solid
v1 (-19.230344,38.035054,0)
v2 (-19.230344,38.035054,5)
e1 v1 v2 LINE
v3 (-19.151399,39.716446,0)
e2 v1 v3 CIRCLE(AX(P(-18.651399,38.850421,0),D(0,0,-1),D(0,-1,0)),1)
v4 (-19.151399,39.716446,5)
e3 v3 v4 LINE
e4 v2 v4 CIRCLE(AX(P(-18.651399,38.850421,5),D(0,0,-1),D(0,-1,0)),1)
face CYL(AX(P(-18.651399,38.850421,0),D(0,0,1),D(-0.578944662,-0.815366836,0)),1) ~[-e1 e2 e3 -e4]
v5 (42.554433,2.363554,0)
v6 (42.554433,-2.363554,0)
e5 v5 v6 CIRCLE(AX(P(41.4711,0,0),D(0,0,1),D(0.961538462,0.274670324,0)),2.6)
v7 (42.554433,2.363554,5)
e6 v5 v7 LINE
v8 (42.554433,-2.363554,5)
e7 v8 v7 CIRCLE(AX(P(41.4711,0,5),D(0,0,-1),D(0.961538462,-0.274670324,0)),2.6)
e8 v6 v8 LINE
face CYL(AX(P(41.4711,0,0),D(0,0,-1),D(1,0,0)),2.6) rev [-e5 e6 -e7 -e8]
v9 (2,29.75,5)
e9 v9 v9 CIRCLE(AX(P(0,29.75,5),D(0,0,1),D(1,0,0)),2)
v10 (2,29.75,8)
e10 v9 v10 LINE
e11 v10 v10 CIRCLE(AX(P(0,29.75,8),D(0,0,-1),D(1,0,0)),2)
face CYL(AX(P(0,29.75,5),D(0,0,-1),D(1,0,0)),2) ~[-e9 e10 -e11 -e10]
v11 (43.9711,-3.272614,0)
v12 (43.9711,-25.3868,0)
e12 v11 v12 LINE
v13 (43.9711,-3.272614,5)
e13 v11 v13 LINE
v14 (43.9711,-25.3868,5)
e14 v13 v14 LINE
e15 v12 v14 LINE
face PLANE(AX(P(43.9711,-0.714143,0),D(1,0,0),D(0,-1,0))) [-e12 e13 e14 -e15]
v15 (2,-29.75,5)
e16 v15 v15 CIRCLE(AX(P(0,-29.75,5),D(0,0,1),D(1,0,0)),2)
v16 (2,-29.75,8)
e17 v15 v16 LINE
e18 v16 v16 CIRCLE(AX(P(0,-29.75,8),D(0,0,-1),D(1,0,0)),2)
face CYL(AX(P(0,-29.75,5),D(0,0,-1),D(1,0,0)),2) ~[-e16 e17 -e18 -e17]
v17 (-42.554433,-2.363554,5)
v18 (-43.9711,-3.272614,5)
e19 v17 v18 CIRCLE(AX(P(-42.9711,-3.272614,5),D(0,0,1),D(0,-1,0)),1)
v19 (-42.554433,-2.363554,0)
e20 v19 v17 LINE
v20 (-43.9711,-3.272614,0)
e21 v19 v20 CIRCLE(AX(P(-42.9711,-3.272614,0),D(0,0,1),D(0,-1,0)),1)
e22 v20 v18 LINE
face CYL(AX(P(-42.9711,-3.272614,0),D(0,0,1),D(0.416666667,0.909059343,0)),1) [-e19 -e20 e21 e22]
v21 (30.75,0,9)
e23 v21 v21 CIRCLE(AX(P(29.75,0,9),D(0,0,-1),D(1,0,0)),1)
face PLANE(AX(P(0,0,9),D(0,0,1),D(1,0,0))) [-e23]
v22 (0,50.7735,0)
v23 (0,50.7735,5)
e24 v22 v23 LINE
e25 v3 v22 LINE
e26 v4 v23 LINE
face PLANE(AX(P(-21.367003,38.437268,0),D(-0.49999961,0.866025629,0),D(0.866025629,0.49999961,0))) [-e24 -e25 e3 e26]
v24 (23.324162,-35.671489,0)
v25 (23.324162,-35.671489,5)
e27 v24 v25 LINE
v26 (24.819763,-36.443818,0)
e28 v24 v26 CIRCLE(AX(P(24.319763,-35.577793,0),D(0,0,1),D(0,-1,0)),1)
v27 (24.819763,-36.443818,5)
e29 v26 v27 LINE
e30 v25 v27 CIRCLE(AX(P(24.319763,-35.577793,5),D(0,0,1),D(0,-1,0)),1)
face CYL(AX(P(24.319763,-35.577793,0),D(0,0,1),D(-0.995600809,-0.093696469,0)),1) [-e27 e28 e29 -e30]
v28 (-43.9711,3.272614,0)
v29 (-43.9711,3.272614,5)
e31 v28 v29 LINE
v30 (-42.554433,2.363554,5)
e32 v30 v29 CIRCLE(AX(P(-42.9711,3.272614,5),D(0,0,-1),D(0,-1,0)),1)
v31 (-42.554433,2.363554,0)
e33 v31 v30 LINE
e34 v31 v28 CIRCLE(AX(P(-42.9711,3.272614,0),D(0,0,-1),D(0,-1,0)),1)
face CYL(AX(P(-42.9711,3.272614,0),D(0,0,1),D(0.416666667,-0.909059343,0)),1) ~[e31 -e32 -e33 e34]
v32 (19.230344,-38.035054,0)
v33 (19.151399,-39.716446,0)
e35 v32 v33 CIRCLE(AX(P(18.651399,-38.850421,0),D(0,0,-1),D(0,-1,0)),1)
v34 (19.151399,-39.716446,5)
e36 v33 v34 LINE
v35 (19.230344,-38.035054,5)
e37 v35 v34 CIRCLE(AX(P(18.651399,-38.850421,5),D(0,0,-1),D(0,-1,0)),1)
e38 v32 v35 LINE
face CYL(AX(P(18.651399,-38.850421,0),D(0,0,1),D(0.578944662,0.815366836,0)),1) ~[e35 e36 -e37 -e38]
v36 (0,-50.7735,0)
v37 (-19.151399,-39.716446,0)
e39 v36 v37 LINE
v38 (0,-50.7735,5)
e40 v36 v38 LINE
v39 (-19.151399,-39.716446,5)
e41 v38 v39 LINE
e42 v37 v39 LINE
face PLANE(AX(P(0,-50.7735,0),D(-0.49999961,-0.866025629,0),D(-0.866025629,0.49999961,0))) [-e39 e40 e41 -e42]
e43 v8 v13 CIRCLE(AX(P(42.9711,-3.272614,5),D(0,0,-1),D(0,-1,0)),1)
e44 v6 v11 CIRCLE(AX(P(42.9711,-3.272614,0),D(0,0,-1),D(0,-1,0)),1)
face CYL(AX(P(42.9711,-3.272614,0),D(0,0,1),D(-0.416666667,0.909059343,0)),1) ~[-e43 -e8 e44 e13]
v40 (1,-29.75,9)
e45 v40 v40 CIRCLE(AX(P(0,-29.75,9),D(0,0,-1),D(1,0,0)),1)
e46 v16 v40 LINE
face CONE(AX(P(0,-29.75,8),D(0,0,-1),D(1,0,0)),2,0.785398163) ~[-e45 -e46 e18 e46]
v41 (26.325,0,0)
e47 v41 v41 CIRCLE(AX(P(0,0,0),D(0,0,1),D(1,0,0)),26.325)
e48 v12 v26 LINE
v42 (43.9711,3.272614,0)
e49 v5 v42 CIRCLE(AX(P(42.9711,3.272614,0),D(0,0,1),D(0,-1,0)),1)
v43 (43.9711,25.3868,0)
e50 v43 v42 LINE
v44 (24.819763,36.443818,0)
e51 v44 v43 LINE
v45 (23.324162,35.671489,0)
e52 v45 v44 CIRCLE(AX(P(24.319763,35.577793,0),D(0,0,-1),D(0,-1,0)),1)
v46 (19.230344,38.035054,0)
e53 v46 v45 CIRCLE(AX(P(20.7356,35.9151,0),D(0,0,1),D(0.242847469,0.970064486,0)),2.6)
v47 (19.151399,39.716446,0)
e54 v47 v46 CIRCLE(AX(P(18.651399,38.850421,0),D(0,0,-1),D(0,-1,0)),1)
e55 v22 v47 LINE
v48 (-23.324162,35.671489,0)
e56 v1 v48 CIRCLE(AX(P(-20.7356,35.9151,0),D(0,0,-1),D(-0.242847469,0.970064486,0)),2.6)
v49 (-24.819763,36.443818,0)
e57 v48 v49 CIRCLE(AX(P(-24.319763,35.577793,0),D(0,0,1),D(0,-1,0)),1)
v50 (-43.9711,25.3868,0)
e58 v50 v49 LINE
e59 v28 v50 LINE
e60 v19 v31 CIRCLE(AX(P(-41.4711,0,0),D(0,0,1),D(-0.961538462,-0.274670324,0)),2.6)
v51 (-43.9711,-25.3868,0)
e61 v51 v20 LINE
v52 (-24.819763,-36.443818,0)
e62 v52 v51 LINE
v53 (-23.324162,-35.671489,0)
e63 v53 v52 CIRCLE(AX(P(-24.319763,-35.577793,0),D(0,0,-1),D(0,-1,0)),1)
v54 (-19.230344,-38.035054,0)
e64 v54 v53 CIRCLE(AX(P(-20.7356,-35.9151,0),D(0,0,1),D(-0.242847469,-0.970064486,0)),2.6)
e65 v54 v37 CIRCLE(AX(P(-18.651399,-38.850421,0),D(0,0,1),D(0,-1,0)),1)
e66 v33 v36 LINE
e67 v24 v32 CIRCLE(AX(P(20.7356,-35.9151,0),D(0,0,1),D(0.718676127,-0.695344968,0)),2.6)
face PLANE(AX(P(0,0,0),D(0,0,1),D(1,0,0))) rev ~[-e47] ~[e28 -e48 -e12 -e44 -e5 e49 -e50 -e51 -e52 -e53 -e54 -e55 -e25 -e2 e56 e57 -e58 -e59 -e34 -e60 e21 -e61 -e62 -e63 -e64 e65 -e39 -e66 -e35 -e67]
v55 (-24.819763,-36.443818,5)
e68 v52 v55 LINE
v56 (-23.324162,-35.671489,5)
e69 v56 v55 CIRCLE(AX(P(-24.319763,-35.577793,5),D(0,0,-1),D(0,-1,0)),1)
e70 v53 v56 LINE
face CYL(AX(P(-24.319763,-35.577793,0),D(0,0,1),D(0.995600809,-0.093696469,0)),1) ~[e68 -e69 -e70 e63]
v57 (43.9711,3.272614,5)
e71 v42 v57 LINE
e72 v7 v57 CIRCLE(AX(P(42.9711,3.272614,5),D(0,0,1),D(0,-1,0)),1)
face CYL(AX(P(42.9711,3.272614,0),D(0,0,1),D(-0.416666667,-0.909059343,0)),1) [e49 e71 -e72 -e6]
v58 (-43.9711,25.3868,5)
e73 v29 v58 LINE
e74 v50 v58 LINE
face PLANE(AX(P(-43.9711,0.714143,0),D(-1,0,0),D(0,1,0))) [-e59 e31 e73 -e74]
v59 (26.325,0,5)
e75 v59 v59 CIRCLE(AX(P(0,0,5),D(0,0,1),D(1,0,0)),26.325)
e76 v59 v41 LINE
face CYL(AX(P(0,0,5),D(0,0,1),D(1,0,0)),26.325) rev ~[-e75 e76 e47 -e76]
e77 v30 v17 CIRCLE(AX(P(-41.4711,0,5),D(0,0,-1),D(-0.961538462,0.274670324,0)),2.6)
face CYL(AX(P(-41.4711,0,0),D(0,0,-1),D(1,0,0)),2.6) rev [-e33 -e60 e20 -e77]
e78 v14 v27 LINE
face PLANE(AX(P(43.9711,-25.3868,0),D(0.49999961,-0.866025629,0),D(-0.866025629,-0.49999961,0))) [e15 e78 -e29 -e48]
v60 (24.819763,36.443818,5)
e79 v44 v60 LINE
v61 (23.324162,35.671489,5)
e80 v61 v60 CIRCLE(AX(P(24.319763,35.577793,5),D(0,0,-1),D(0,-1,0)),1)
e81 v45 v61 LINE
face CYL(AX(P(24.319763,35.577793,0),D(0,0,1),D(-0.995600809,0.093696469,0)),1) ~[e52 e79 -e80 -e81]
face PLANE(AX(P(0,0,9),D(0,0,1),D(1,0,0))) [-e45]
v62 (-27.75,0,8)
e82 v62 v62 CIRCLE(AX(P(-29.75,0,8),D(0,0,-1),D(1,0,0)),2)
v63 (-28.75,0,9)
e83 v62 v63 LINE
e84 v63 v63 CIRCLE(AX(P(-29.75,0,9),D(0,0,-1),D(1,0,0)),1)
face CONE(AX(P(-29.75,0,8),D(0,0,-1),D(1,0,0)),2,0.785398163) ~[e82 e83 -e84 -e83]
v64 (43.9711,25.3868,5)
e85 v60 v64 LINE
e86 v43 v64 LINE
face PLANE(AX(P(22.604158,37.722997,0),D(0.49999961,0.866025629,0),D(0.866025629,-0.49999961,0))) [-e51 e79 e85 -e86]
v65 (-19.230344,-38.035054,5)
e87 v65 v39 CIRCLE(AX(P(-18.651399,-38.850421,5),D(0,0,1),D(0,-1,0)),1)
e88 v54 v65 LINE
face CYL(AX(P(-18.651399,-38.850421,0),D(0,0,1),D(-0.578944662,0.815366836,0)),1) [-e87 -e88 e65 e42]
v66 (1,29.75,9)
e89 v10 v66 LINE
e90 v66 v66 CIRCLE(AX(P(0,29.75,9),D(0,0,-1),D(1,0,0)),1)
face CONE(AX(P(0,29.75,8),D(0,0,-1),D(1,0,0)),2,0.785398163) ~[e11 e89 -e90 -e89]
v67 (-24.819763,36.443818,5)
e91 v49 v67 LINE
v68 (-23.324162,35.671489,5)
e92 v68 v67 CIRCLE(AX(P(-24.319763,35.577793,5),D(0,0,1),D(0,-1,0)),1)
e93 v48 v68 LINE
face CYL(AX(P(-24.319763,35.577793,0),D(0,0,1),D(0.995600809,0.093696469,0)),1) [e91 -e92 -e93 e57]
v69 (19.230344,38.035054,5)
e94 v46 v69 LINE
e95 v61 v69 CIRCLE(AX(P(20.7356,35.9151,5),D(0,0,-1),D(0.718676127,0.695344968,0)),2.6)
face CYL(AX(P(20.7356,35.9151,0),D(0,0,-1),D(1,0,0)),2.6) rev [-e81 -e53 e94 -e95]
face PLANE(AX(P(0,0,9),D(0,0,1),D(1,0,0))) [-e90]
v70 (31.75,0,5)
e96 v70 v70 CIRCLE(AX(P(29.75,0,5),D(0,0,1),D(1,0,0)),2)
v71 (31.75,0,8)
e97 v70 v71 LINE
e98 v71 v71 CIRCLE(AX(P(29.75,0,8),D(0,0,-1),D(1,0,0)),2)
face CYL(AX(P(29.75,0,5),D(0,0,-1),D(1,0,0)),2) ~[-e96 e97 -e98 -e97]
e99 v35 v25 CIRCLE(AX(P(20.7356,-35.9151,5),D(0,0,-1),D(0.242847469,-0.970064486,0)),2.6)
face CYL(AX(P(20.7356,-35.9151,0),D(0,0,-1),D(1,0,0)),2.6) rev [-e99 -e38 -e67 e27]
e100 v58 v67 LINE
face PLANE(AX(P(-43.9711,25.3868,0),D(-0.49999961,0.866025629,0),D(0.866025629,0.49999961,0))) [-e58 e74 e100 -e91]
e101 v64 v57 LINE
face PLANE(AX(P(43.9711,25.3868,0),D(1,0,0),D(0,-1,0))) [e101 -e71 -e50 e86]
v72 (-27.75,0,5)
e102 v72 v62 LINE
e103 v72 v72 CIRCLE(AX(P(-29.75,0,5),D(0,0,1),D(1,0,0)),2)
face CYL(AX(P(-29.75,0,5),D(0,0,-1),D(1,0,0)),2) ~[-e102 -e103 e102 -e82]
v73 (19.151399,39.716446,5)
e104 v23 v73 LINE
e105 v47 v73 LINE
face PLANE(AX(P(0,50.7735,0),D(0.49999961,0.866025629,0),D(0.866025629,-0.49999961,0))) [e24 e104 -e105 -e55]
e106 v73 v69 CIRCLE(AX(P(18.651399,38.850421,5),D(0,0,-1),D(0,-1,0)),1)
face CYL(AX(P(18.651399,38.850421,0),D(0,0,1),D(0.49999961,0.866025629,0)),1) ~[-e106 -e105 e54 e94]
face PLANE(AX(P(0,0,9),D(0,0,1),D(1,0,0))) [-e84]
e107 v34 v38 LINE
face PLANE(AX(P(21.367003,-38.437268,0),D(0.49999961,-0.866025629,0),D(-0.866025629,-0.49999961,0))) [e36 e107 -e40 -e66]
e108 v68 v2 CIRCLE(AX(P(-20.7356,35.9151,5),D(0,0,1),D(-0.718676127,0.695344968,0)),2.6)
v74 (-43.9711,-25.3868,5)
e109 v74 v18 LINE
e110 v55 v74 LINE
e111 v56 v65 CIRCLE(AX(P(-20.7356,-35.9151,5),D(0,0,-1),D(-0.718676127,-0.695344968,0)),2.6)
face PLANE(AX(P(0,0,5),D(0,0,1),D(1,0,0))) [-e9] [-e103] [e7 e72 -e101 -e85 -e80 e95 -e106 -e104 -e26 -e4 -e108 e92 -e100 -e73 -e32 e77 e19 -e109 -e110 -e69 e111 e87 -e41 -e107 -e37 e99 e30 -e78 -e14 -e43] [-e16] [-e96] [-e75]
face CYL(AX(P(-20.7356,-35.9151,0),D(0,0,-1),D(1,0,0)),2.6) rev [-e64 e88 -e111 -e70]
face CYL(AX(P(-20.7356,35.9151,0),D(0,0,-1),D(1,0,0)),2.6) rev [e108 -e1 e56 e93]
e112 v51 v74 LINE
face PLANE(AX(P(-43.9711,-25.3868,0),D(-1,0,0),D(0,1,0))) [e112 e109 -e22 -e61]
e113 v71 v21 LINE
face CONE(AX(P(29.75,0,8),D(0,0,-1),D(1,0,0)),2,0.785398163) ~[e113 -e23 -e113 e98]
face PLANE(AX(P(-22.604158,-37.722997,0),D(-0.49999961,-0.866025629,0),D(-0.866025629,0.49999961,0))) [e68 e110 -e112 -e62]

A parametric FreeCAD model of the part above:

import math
import FreeCAD as App
import Part
import Sketcher
from FreeCAD import Vector
Q = App.Units.Quantity


def edges_at(feature, points):
    """Names of the edges that pass closest to the given points."""
    edges = feature.Shape.Edges
    near = lambda p: min(range(len(edges)), key=lambda i: edges[i].distToShape(Part.Vertex(*p))[0])
    return sorted({f"Edge{near(p) + 1}" for p in points})

doc = App.newDocument("Part")
body = doc.addObject("PartDesign::Body", "Body")

# Sketch on XY plane
sketch1 = body.newObject("Sketcher::SketchObject", "Sketch")
sketch1.AttachmentSupport = (doc.getObject("XY_Plane"), [""])
sketch1.MapMode = "FlatFace"
sketch1.addGeometry([
    Part.LineSegment(Vector(-22.6, 37.7, 0), Vector(-44, 25.4, 0)),  # 0
    Part.LineSegment(Vector(-44, 25.4, 0), Vector(-44, 0.7, 0)),  # 1
    Part.ArcOfCircle(Part.Circle(Vector(-41.5, 0, 0), Vector(0, 0, 1), 2.6), math.radians(-164), math.radians(164)),  # 2
    Part.LineSegment(Vector(-44, -0.7, 0), Vector(-44, -25.4, 0)),  # 3
    Part.LineSegment(Vector(-44, -25.4, 0), Vector(-22.6, -37.7, 0)),  # 4
    Part.ArcOfCircle(Part.Circle(Vector(-20.7, -35.9, 0), Vector(0, 0, 1), 2.6), math.radians(-104), math.radians(224)),  # 5
    Part.LineSegment(Vector(-21.4, -38.4, 0), Vector(0, -50.8, 0)),  # 6
    Part.LineSegment(Vector(0, -50.8, 0), Vector(21.4, -38.4, 0)),  # 7
    Part.ArcOfCircle(Part.Circle(Vector(20.7, -35.9, 0), Vector(0, 0, 1), 2.6), math.radians(-44), math.radians(284)),  # 8
    Part.LineSegment(Vector(22.6, -37.7, 0), Vector(44, -25.4, 0)),  # 9
    Part.LineSegment(Vector(44, -25.4, 0), Vector(44, -0.7, 0)),  # 10
    Part.ArcOfCircle(Part.Circle(Vector(41.5, 0, 0), Vector(0, 0, 1), 2.6), math.radians(16), math.radians(344)),  # 11
    Part.LineSegment(Vector(44, 0.7, 0), Vector(44, 25.4, 0)),  # 12
    Part.LineSegment(Vector(44, 25.4, 0), Vector(22.6, 37.7, 0)),  # 13
    Part.ArcOfCircle(Part.Circle(Vector(20.7, 35.9, 0), Vector(0, 0, 1), 2.6), math.radians(76), math.radians(404)),  # 14
    Part.LineSegment(Vector(21.4, 38.4, 0), Vector(0, 50.8, 0)),  # 15
    Part.LineSegment(Vector(0, 50.8, 0), Vector(-21.4, 38.4, 0)),  # 16
    Part.ArcOfCircle(Part.Circle(Vector(-20.7, 35.9, 0), Vector(0, 0, 1), 2.6), math.radians(136), math.radians(464)),  # 17
], False)
sketch1.addConstraint([
    Sketcher.Constraint("Coincident", 0, 2, 1, 1),
    Sketcher.Constraint("Coincident", 1, 2, 2, 2),
    Sketcher.Constraint("Coincident", 2, 1, 3, 1),
    Sketcher.Constraint("Coincident", 3, 2, 4, 1),
    Sketcher.Constraint("Coincident", 4, 2, 5, 2),
    Sketcher.Constraint("Coincident", 5, 1, 6, 1),
    Sketcher.Constraint("Coincident", 6, 2, 7, 1),
    Sketcher.Constraint("Coincident", 7, 2, 8, 2),
    Sketcher.Constraint("Coincident", 8, 1, 9, 1),
    Sketcher.Constraint("Coincident", 9, 2, 10, 1),
    Sketcher.Constraint("Coincident", 10, 2, 11, 2),
    Sketcher.Constraint("Coincident", 11, 1, 12, 1),
    Sketcher.Constraint("Coincident", 12, 2, 13, 1),
    Sketcher.Constraint("Coincident", 13, 2, 14, 2),
    Sketcher.Constraint("Coincident", 14, 1, 15, 1),
    Sketcher.Constraint("Coincident", 15, 2, 16, 1),
    Sketcher.Constraint("Coincident", 16, 2, 17, 2),
    Sketcher.Constraint("Coincident", 17, 1, 0, 1),
    Sketcher.Constraint("Vertical", 1),
    Sketcher.Constraint("Vertical", 3),
    Sketcher.Constraint("Vertical", 10),
    Sketcher.Constraint("Vertical", 12),
    Sketcher.Constraint("Equal", 2, 5),
    Sketcher.Constraint("Equal", 5, 8),
    Sketcher.Constraint("Equal", 8, 11),
    Sketcher.Constraint("Equal", 11, 14),
    Sketcher.Constraint("Equal", 14, 17),
    Sketcher.Constraint("Symmetric", 2, 3, 11, 3, -1, 1),
    Sketcher.Constraint("Symmetric", 5, 3, 14, 3, -1, 1),
    Sketcher.Constraint("Symmetric", 8, 3, 17, 3, -1, 1),
    Sketcher.Constraint("Symmetric", 0, 2, 9, 2, -1, 1),
    Sketcher.Constraint("Symmetric", 3, 2, 12, 2, -1, 1),
    Sketcher.Constraint("Symmetric", 6, 2, 15, 2, -1, 1),
    Sketcher.Constraint("Symmetric", 5, 3, 8, 3, -2),
    Sketcher.Constraint("Symmetric", 3, 2, 9, 2, -2),
    Sketcher.Constraint("PointOnObject", 2, 3, -1),
    Sketcher.Constraint("PointOnObject", 6, 2, -2),
    Sketcher.Constraint("Parallel", 4, 6),
    Sketcher.Constraint("Parallel", 0, 7),
    Sketcher.Constraint("Parallel", 7, 9),
    Sketcher.Constraint("Parallel", 6, 13),
    Sketcher.Constraint("Parallel", 13, 15),
    Sketcher.Constraint("Parallel", 9, 16),
    Sketcher.Constraint("Horizontal", 5, 1, 7, 2),
    Sketcher.Constraint("Equal", 4, 6),
    Sketcher.Constraint("Radius", 2, Q("2.6 mm")),
    Sketcher.Constraint("Angle", 0, Q("-150 deg")),
    Sketcher.Constraint("DistanceX", 0, 2, 2, 3, Q("2.5 mm")),
    Sketcher.Constraint("DistanceY", 1, 2, 1, 1, Q("24.6727 mm")),
    Sketcher.Constraint("DistanceX", 2, 3, -1, 1, Q("41.471 mm")),
    Sketcher.Constraint("DistanceY", 5, 3, -1, 1, Q("35.915 mm")),
    Sketcher.Constraint("DistanceY", 4, 2, -1, 1, Q("37.723 mm")),
])
pad1 = body.newObject("PartDesign::Pad", "Pad")
pad1.Profile = sketch1
pad1.Length = 5
doc.recompute()

fillet = body.newObject("PartDesign::Fillet", "Fillet")
fillet.Base = (pad1, edges_at(pad1, [
    (-22.604, 37.723, 2.5),
    (-21.367, 38.437, 2.5),
    (-43.971, 0.714, 2.5),
    (-43.971, -0.714, 2.5),
    (-22.604, -37.723, 2.5),
    (-21.367, -38.437, 2.5),
    (21.367, -38.437, 2.5),
    (22.604, -37.723, 2.5),
    (43.971, -0.714, 2.5),
    (43.971, 0.714, 2.5),
    (21.367, 38.437, 2.5),
    (22.604, 37.723, 2.5),
]))
fillet.Radius = 1

# Sketch on XY plane
sketch2 = body.newObject("Sketcher::SketchObject", "Sketch001")
sketch2.AttachmentSupport = (doc.getObject("XY_Plane"), [""])
sketch2.MapMode = "FlatFace"
sketch2.AttachmentOffset = App.Placement(Vector(0, 0, 5), App.Rotation())
sketch2.addGeometry(Part.Circle(Vector(0, 0, 0), Vector(0, 0, 1), 26), False)
sketch2.addConstraint([
    Sketcher.Constraint("Coincident", 0, 3, -1, 1),
    Sketcher.Constraint("Diameter", 0, Q("52.65 mm")),
])
pocket1 = body.newObject("PartDesign::Pocket", "Pocket")
pocket1.Profile = sketch2
pocket1.Type = "ThroughAll"

# Sketch on XY plane
sketch3 = body.newObject("Sketcher::SketchObject", "Sketch002")
sketch3.AttachmentSupport = (doc.getObject("XY_Plane"), [""])
sketch3.MapMode = "FlatFace"
sketch3.AttachmentOffset = App.Placement(Vector(0, 0, 5), App.Rotation())
sketch3.addGeometry([
    Part.Circle(Vector(29.8, 0, 0), Vector(0, 0, 1), 2),
    Part.Circle(Vector(0, 29.8, 0), Vector(0, 0, 1), 2),
    Part.Circle(Vector(0, -29.8, 0), Vector(0, 0, 1), 2),
    Part.Circle(Vector(-29.8, 0, 0), Vector(0, 0, 1), 2),
], False)
sketch3.addConstraint([
    Sketcher.Constraint("Equal", 0, 1),
    Sketcher.Constraint("Equal", 1, 2),
    Sketcher.Constraint("Equal", 2, 3),
    Sketcher.Constraint("Symmetric", 1, 3, 2, 3, -1, 1),
    Sketcher.Constraint("Symmetric", 0, 3, 3, 3, -1, 1),
    Sketcher.Constraint("PointOnObject", 0, 3, -1),
    Sketcher.Constraint("PointOnObject", 1, 3, -2),
    Sketcher.Constraint("Diameter", 0, Q("4 mm")),
    Sketcher.Constraint("DistanceY", 2, 3, 1, 3, Q("59.5 mm")),
    Sketcher.Constraint("DistanceX", 3, 3, 0, 3, Q("59.5 mm")),
])
pad2 = body.newObject("PartDesign::Pad", "Pad001")
pad2.Profile = sketch3
pad2.Length = 4
doc.recompute()

chamfer = body.newObject("PartDesign::Chamfer", "Chamfer")
chamfer.Base = (pad2, edges_at(pad2, [
    (-31.75, 0, 9),
    (-2, 29.75, 9),
    (27.75, 0, 9),
    (-2, -29.75, 9),
]))
chamfer.Size = 1

doc.recompute()
